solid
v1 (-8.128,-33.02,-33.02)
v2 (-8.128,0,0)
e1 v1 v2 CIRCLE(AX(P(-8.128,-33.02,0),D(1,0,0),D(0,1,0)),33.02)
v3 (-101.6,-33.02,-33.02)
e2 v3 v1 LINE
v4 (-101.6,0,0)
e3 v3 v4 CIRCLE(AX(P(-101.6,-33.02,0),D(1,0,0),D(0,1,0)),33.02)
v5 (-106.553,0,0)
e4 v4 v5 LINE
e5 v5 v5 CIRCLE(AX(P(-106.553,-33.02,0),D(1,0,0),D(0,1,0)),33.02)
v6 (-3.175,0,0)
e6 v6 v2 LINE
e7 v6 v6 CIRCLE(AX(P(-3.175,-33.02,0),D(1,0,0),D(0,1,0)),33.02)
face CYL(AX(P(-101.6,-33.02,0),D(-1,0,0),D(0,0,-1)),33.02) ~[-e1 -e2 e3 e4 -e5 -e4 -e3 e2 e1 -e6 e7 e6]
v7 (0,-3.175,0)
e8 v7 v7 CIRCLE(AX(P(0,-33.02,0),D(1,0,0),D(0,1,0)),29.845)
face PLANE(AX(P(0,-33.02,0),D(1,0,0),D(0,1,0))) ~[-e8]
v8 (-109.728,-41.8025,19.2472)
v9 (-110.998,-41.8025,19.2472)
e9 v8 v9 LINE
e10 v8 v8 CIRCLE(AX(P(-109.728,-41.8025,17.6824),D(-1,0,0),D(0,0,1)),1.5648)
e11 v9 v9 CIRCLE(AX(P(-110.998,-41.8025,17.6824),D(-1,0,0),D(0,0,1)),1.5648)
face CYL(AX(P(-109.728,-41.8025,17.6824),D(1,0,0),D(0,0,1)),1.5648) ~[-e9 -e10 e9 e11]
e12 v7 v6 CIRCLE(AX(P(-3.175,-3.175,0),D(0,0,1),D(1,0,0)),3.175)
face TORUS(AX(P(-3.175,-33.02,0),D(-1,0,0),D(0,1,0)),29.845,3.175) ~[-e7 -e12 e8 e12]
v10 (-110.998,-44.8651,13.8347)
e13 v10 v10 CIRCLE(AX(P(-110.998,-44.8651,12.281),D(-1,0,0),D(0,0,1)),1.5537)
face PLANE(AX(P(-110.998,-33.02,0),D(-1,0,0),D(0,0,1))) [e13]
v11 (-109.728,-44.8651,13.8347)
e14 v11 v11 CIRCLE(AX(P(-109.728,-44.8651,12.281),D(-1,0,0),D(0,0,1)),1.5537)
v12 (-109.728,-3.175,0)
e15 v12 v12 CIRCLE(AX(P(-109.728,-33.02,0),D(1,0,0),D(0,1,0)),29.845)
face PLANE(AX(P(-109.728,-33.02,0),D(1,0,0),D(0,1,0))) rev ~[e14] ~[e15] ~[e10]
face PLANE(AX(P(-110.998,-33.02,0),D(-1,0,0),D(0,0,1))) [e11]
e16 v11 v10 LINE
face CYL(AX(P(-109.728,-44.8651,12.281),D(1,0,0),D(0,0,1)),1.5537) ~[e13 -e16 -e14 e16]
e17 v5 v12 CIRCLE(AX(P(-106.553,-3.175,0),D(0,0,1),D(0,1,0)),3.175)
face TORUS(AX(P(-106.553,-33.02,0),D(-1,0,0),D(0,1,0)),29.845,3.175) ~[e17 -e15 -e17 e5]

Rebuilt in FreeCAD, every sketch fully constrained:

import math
import FreeCAD as App
import Part
import Sketcher
from FreeCAD import Vector
Q = App.Units.Quantity

doc = App.newDocument("Part")
body = doc.addObject("PartDesign::Body", "Body")
body.AllowCompound = True

# Sketch on XY plane
sketch1 = body.newObject("Sketcher::SketchObject", "Sketch")
sketch1.AttachmentSupport = (doc.getObject("XY_Plane"), [""])
sketch1.MapMode = "FlatFace"
sketch1.addGeometry(Part.LineSegment(Vector(-109.728, -33.02, 0), Vector(-101.6, -33.02, 0)), False)
sketch1.addGeometry(Part.LineSegment(Vector(-101.6, -33.02, 0), Vector(-101.6, 0, 0)), False)
sketch1.addGeometry(Part.LineSegment(Vector(-101.6, 0, 0), Vector(-106.553, 0, 0)), False)
sketch1.addGeometry(Part.ArcOfCircle(Part.Circle(Vector(-106.553, -3.175, 0), Vector(0, 0, 1), 3.175), math.radians(90), math.radians(180)), False)
sketch1.addGeometry(Part.LineSegment(Vector(-109.728, -3.175, 0), Vector(-109.728, -33.02, 0)), False)
sketch1.addGeometry(Part.LineSegment(Vector(-8.128, 0, 0), Vector(-8.128, -33.02, 0)), False)
sketch1.addGeometry(Part.LineSegment(Vector(-8.128, -33.02, 0), Vector(0, -33.02, 0)), False)
sketch1.addGeometry(Part.LineSegment(Vector(0, -33.02, 0), Vector(0, -3.175, 0)), False)
sketch1.addGeometry(Part.ArcOfCircle(Part.Circle(Vector(-3.175, -3.175, 0), Vector(0, 0, 1), 3.175), math.radians(0), math.radians(90)), False)
sketch1.addGeometry(Part.LineSegment(Vector(-3.175, 0, 0), Vector(-8.128, 0, 0)), False)
sketch1.addGeometry(Part.LineSegment(Vector(-109.728, -33.02, 0), Vector(0, -33.02, 0)), True)  # axis
sketch1.addConstraint(Sketcher.Constraint("Coincident", 0, 2, 1, 1))
sketch1.addConstraint(Sketcher.Constraint("Coincident", 1, 2, 2, 1))
sketch1.addConstraint(Sketcher.Constraint("Tangent", 2, 2, 3, 1))
sketch1.addConstraint(Sketcher.Constraint("Tangent", 3, 2, 4, 1))
sketch1.addConstraint(Sketcher.Constraint("Coincident", 4, 2, 0, 1))
sketch1.addConstraint(Sketcher.Constraint("Coincident", 5, 2, 6, 1))
sketch1.addConstraint(Sketcher.Constraint("Coincident", 6, 2, 7, 1))
sketch1.addConstraint(Sketcher.Constraint("Tangent", 7, 2, 8, 1))
sketch1.addConstraint(Sketcher.Constraint("Tangent", 8, 2, 9, 1))
sketch1.addConstraint(Sketcher.Constraint("Coincident", 9, 2, 5, 1))
sketch1.addConstraint(Sketcher.Constraint("Horizontal", 0))
sketch1.addConstraint(Sketcher.Constraint("Vertical", 1))
sketch1.addConstraint(Sketcher.Constraint("Horizontal", 2))
sketch1.addConstraint(Sketcher.Constraint("Vertical", 4))
sketch1.addConstraint(Sketcher.Constraint("Vertical", 5))
sketch1.addConstraint(Sketcher.Constraint("Horizontal", 6))
sketch1.addConstraint(Sketcher.Constraint("Vertical", 7))
sketch1.addConstraint(Sketcher.Constraint("Horizontal", 9))
sketch1.addConstraint(Sketcher.Constraint("Horizontal", 10))
sketch1.addConstraint(Sketcher.Constraint("Coincident", 10, 1, 4, 2))
sketch1.addConstraint(Sketcher.Constraint("Coincident", 10, 2, 6, 2))
sketch1.addConstraint(Sketcher.Constraint("Equal", 3, 8))
sketch1.addConstraint(Sketcher.Constraint("PointOnObject", 1, 2, -1))
sketch1.addConstraint(Sketcher.Constraint("PointOnObject", 6, 2, -2))
sketch1.addConstraint(Sketcher.Constraint("PointOnObject", 8, 2, -1))
sketch1.addConstraint(Sketcher.Constraint("Equal", 0, 6))
sketch1.addConstraint(Sketcher.Constraint("Radius", 3, Q("0.125 in")))
sketch1.addConstraint(Sketcher.Constraint("DistanceX", 10, 1, 10, 2, Q("4.32 in")))
sketch1.addConstraint(Sketcher.Constraint("DistanceX", 0, 2, 5, 2, Q("3.68 in")))
sketch1.addConstraint(Sketcher.Constraint("DistanceY", 1, 1, 1, 2, Q("1.3 in")))
revolution = body.newObject("PartDesign::Revolution", "Revolution")
revolution.Profile = sketch1
revolution.ReferenceAxis = (sketch1, ["Axis0"])
revolution.Angle = 360

# Sketch on YZ plane
sketch2 = body.newObject("Sketcher::SketchObject", "Sketch001")
sketch2.AttachmentSupport = (doc.getObject("YZ_Plane"), [""])
sketch2.MapMode = "FlatFace"
sketch2.AttachmentOffset = App.Placement(Vector(0, 0, -4 * 25.4), App.Rotation())
sketch2.addGeometry(Part.Circle(Vector(-33.02, 0, 0), Vector(0, 0, 1), 33.02), False)
sketch2.addConstraint(Sketcher.Constraint("PointOnObject", 0, 3, -1))
sketch2.addConstraint(Sketcher.Constraint("Diameter", 0, Q("2.6 in")))
sketch2.addConstraint(Sketcher.Constraint("DistanceX", 0, 3, -1, 1, Q("1.3 in")))
pad1 = body.newObject("PartDesign::Pad", "Pad")
pad1.Profile = sketch2
pad1.Length = Q("3.6875 in")

# Sketch on YZ plane
sketch3 = body.newObject("Sketcher::SketchObject", "Sketch002")
sketch3.AttachmentSupport = (doc.getObject("YZ_Plane"), [""])
sketch3.MapMode = "FlatFace"
sketch3.AttachmentOffset = App.Placement(Vector(0, 0, -4.32 * 25.4), App.Rotation())
sketch3.addGeometry(Part.Circle(Vector(-44.8651, 12.281, 0), Vector(0, 0, 1), 1.5537), False)
sketch3.addConstraint(Sketcher.Constraint("Diameter", 0, Q("3.1074 mm")))
sketch3.addConstraint(Sketcher.Constraint("DistanceY", -1, 1, 0, 3, Q("0.4835 in")))
sketch3.addConstraint(Sketcher.Constraint("DistanceX", 0, 3, -1, 1, Q("44.865 mm")))
pad2 = body.newObject("PartDesign::Pad", "Pad001")
pad2.Profile = sketch3
pad2.Length = Q("0.05 in")
pad2.Reversed = True

# Sketch on YZ plane
sketch4 = body.newObject("Sketcher::SketchObject", "Sketch003")
sketch4.AttachmentSupport = (doc.getObject("YZ_Plane"), [""])
sketch4.MapMode = "FlatFace"
sketch4.AttachmentOffset = App.Placement(Vector(0, 0, -4.32 * 25.4), App.Rotation())
sketch4.addGeometry(Part.Circle(Vector(-41.8025, 17.6824, 0), Vector(0, 0, 1), 1.5648), False)
sketch4.addConstraint(Sketcher.Constraint("Diameter", 0, Q("3.1296 mm")))
sketch4.addConstraint(Sketcher.Constraint("DistanceX", 0, 3, -1, 1, Q("41.8025 mm")))
sketch4.addConstraint(Sketcher.Constraint("DistanceY", -1, 1, 0, 3, Q("17.6824 mm")))
pad3 = body.newObject("PartDesign::Pad", "Pad002")
pad3.Profile = sketch4
pad3.Length = Q("0.05 in")
pad3.Reversed = True

doc.recompute()
